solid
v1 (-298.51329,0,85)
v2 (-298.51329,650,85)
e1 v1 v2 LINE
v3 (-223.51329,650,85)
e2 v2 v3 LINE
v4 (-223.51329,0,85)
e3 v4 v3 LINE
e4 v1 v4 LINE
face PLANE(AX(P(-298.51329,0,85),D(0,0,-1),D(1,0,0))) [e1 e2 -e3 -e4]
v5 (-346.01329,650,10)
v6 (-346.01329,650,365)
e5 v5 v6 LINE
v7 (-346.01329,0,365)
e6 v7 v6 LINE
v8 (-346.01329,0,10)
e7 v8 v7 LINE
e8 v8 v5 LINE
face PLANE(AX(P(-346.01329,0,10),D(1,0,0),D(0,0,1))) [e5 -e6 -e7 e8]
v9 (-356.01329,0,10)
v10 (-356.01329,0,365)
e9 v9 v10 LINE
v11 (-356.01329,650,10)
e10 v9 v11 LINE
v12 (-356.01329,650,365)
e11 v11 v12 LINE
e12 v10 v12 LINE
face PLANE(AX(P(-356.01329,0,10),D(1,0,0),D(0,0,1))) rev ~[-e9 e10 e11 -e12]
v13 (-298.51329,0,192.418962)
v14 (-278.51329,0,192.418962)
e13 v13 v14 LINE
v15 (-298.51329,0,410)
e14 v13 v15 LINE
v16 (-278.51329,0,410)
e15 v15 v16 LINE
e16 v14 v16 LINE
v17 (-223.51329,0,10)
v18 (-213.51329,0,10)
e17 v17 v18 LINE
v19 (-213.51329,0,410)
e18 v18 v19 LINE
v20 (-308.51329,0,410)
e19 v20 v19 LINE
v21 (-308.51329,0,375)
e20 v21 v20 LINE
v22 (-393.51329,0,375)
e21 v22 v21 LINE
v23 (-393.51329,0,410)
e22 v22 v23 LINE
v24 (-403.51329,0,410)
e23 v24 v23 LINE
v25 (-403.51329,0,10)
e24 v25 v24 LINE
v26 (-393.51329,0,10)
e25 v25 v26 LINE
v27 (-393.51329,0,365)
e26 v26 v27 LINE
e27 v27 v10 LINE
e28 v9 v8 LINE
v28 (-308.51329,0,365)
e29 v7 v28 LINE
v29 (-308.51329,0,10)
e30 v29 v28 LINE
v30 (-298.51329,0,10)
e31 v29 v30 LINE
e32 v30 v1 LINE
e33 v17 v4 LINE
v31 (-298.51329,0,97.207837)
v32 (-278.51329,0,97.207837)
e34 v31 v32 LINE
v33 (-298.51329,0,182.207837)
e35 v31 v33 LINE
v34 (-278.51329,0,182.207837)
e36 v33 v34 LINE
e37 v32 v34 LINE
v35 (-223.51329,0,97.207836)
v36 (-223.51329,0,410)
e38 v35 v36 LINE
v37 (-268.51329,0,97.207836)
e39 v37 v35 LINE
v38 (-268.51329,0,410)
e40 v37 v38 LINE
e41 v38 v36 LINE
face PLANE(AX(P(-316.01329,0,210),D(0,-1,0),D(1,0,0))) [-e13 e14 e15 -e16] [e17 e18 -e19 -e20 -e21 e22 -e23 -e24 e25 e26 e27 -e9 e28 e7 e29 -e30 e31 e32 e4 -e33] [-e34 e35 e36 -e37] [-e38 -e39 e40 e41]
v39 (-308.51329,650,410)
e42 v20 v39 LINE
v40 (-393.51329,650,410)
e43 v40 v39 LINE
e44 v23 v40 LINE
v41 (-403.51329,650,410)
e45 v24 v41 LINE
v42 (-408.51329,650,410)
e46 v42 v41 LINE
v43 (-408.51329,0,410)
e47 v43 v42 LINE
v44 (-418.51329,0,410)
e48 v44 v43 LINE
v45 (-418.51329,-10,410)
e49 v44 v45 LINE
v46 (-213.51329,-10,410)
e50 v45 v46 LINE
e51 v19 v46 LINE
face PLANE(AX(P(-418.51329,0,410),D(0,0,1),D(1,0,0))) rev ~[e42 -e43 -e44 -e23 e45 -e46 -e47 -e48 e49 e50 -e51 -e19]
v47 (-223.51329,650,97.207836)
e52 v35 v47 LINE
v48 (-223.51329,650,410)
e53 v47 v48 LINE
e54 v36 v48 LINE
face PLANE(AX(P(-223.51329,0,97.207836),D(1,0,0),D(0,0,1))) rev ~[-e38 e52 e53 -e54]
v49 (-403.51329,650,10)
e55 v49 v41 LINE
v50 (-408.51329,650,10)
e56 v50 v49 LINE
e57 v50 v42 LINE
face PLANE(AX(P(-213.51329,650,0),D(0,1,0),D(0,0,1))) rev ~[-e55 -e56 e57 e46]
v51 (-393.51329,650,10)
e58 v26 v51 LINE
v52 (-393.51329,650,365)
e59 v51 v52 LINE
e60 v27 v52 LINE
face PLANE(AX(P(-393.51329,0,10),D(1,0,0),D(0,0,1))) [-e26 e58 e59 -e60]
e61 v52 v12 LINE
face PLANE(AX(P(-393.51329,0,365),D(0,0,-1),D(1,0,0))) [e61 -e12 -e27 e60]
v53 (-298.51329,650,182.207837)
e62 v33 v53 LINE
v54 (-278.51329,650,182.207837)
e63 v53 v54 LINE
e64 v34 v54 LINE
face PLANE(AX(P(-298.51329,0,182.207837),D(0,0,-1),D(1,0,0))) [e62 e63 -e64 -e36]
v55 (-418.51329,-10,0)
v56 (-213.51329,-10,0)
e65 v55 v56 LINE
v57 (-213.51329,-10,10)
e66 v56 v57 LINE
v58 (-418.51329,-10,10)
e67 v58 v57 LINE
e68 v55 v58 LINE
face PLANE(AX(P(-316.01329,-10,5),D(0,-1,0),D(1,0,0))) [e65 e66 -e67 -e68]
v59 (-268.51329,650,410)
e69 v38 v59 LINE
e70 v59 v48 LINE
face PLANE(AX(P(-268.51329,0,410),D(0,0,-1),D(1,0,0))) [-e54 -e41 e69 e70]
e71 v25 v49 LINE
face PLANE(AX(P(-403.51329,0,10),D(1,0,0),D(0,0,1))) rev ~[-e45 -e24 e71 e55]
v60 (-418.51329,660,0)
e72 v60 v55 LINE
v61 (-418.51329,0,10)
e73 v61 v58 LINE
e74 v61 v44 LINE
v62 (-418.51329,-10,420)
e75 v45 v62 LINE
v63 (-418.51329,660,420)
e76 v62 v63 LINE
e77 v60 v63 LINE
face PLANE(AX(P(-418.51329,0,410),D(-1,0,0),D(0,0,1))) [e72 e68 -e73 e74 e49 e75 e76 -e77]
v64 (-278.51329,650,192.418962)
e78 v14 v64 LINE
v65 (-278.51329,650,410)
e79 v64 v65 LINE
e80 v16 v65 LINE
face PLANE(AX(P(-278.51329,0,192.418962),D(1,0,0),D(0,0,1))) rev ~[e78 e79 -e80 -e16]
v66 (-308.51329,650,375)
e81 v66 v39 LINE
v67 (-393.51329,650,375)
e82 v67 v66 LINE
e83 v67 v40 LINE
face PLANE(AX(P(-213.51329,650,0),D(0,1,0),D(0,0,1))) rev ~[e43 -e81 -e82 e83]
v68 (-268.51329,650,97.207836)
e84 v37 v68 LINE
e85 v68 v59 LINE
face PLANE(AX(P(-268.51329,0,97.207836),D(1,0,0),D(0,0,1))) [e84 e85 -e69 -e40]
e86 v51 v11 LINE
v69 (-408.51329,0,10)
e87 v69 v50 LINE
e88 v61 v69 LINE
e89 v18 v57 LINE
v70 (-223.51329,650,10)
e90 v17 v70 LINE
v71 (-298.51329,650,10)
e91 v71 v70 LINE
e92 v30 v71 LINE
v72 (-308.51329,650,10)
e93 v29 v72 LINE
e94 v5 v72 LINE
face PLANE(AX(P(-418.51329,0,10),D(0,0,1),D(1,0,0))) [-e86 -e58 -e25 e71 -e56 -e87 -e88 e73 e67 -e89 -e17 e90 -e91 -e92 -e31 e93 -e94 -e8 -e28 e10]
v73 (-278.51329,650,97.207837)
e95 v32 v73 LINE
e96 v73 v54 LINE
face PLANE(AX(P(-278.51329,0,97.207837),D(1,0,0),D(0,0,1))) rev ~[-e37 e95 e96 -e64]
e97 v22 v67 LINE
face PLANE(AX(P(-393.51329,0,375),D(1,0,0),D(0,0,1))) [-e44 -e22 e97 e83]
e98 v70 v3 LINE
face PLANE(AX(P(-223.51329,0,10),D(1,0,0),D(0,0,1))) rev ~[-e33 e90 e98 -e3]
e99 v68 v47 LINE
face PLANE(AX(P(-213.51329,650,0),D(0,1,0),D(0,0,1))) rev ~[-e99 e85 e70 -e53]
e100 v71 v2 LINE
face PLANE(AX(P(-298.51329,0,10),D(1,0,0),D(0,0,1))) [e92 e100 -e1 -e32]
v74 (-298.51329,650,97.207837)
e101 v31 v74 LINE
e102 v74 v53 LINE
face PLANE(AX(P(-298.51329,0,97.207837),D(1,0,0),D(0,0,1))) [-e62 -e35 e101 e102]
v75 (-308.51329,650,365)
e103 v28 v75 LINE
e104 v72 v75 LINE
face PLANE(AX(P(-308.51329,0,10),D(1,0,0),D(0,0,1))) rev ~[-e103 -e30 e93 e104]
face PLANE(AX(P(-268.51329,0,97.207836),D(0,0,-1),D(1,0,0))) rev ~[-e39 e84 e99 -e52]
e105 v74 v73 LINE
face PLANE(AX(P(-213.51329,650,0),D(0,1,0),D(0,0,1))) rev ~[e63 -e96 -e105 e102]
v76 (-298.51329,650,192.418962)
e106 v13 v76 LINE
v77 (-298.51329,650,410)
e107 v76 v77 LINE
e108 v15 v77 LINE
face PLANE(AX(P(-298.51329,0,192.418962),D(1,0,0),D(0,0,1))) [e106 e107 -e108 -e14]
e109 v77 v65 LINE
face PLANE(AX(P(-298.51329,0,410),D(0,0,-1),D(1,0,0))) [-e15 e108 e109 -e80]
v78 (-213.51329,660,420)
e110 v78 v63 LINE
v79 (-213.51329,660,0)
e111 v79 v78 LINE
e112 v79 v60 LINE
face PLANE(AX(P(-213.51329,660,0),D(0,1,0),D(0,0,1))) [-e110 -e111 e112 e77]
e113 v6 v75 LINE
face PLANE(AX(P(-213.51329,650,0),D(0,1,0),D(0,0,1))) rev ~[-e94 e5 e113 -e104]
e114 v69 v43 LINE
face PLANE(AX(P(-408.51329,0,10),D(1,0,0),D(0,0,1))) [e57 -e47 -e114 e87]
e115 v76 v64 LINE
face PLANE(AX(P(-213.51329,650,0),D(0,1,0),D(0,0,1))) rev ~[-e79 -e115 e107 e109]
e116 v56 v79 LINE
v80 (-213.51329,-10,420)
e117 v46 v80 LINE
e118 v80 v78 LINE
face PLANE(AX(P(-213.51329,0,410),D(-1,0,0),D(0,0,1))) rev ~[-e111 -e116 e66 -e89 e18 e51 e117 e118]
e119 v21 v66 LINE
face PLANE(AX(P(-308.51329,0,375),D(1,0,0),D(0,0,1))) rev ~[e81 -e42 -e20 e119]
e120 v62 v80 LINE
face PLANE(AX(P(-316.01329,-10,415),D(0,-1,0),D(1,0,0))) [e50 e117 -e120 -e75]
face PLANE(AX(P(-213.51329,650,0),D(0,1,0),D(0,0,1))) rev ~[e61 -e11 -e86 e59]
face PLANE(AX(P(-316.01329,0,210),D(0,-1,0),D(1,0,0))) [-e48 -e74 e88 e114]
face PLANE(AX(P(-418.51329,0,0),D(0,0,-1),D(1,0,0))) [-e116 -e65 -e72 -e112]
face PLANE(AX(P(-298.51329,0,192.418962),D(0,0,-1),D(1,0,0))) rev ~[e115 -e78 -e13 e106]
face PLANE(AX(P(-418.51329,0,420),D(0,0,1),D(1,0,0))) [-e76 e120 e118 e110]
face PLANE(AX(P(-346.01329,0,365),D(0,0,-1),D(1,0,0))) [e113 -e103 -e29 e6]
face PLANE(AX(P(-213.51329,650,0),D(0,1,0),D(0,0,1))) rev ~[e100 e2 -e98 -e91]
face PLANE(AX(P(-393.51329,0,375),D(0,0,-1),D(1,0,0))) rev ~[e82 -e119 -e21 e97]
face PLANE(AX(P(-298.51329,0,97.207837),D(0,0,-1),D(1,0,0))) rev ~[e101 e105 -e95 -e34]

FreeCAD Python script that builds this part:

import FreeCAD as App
import Part
import Sketcher
from FreeCAD import Vector
Q = App.Units.Quantity


def add_polygon(sketch, points):
    """Adds a closed chain of lines whose ends are joined by coincident constraints."""
    first, n = sketch.GeometryCount, len(points)
    for a, b in zip(points, points[1:] + points[:1]):
        sketch.addGeometry(Part.LineSegment(App.Vector(*a, 0), App.Vector(*b, 0)), False)
    for i in range(n):
        sketch.addConstraint(Sketcher.Constraint("Coincident", first + i, 2, first + (i + 1) % n, 1))

doc = App.newDocument("Part")
body = doc.addObject("PartDesign::Body", "Body")

# Sketch on XZ plane
sketch1 = body.newObject("Sketcher::SketchObject", "Sketch")
sketch1.AttachmentSupport = (doc.getObject("XZ_Plane"), [""])
sketch1.MapMode = "FlatFace"
add_polygon(sketch1, [(-419, 420), (-419, 0), (-214, 0), (-214, 420)])  # lines 0-3
add_polygon(sketch1, [(-356, 10), (-394, 10), (-394, 365), (-356, 365)])  # lines 4-7
add_polygon(sketch1, [(-309, 10), (-346, 10), (-346, 365), (-309, 365)])  # lines 8-11
add_polygon(sketch1, [(-224, 10), (-299, 10), (-299, 85), (-224, 85)])  # lines 12-15
add_polygon(sketch1, [(-279, 97), (-299, 97), (-299, 182), (-279, 182)])  # lines 16-19
add_polygon(sketch1, [(-404, 10), (-409, 10), (-409, 410), (-404, 410)])  # lines 20-23
add_polygon(sketch1, [(-309, 375), (-394, 375), (-394, 410), (-309, 410)])  # lines 24-27
add_polygon(sketch1, [(-279, 192), (-299, 192), (-299, 410), (-279, 410)])  # lines 28-31
add_polygon(sketch1, [(-224, 97), (-269, 97), (-269, 410), (-224, 410)])  # lines 32-35
sketch1.addConstraint([
    Sketcher.Constraint("Vertical", 0),
    Sketcher.Constraint("Horizontal", 1),
    Sketcher.Constraint("Vertical", 2),
    Sketcher.Constraint("Horizontal", 3),
    Sketcher.Constraint("Horizontal", 4),
    Sketcher.Constraint("Vertical", 5),
    Sketcher.Constraint("Horizontal", 6),
    Sketcher.Constraint("Vertical", 7),
    Sketcher.Constraint("Horizontal", 8),
    Sketcher.Constraint("Vertical", 9),
    Sketcher.Constraint("Horizontal", 10),
    Sketcher.Constraint("Vertical", 11),
    Sketcher.Constraint("Horizontal", 12),
    Sketcher.Constraint("Vertical", 13),
    Sketcher.Constraint("Horizontal", 14),
    Sketcher.Constraint("Vertical", 15),
    Sketcher.Constraint("Horizontal", 16),
    Sketcher.Constraint("Vertical", 17),
    Sketcher.Constraint("Horizontal", 18),
    Sketcher.Constraint("Vertical", 19),
    Sketcher.Constraint("Horizontal", 20),
    Sketcher.Constraint("Vertical", 21),
    Sketcher.Constraint("Horizontal", 22),
    Sketcher.Constraint("Vertical", 23),
    Sketcher.Constraint("Horizontal", 24),
    Sketcher.Constraint("Vertical", 25),
    Sketcher.Constraint("Horizontal", 26),
    Sketcher.Constraint("Vertical", 27),
    Sketcher.Constraint("Horizontal", 28),
    Sketcher.Constraint("Vertical", 29),
    Sketcher.Constraint("Horizontal", 30),
    Sketcher.Constraint("Vertical", 31),
    Sketcher.Constraint("Horizontal", 32),
    Sketcher.Constraint("Vertical", 33),
    Sketcher.Constraint("Horizontal", 34),
    Sketcher.Constraint("Vertical", 35),
    Sketcher.Constraint("PointOnObject", 0, 2, -1),
    Sketcher.Constraint("Horizontal", 7, 2, 8, 2),
    Sketcher.Constraint("Horizontal", 6, 2, 9, 2),
    Sketcher.Constraint("Horizontal", 11, 2, 12, 2),
    Sketcher.Constraint("Horizontal", 15, 2, 20, 2),
    Sketcher.Constraint("Horizontal", 22, 2, 25, 2),
    Sketcher.Constraint("Horizontal", 26, 2, 29, 2),
    Sketcher.Constraint("Horizontal", 19, 2, 32, 2),
    Sketcher.Constraint("Horizontal", 30, 2, 33, 2),
    Sketcher.Constraint("Vertical", 13, 2, 16, 2),
    Sketcher.Constraint("Vertical", 5, 2, 24, 2),
    Sketcher.Constraint("Vertical", 11, 2, 26, 2),
    Sketcher.Constraint("Vertical", 17, 2, 28, 2),
    Sketcher.Constraint("Vertical", 19, 2, 30, 2),
    Sketcher.Constraint("Vertical", 15, 2, 34, 2),
    Sketcher.Constraint("Equal", 6, 8),
    Sketcher.Constraint("Equal", 14, 13),
    Sketcher.Constraint("Equal", 26, 17),
    Sketcher.Constraint("DistanceX", 1, 1, 1, 2, Q("205 mm")),
    Sketcher.Constraint("DistanceX", 12, 2, 12, 1, Q("75 mm")),
    Sketcher.Constraint("DistanceX", 16, 2, 16, 1, Q("20 mm")),
    Sketcher.Constraint("DistanceX", 20, 2, 20, 1, Q("5 mm")),
    Sketcher.Constraint("DistanceX", 24, 2, 24, 1, Q("85 mm")),
    Sketcher.Constraint("DistanceX", 32, 2, 32, 1, Q("45 mm")),
    Sketcher.Constraint("DistanceY", 0, 2, 0, 1, Q("420 mm")),
    Sketcher.Constraint("DistanceY", 5, 1, 5, 2, Q("355 mm")),
    Sketcher.Constraint("DistanceY", 21, 1, 21, 2, Q("400 mm")),
    Sketcher.Constraint("DistanceY", 25, 1, 25, 2, Q("35 mm")),
    Sketcher.Constraint("DistanceX", 4, 2, 4, 1, Q("37.5 mm")),
    Sketcher.Constraint("DistanceY", -1, 1, 4, 2, Q("10 mm")),
    Sketcher.Constraint("DistanceX", 0, 2, 4, 2, Q("25 mm")),
    Sketcher.Constraint("DistanceX", 11, 2, 12, 2, Q("10 mm")),
    Sketcher.Constraint("DistanceX", 0, 2, 20, 2, Q("10 mm")),
    Sketcher.Constraint("DistanceY", 29, 1, 29, 2, Q("217.581037 mm")),
    Sketcher.Constraint("DistanceY", 33, 1, 33, 2, Q("312.792163 mm")),
    Sketcher.Constraint("DistanceX", 0, 2, -1, 1, Q("418.51329 mm")),
])
pad1 = body.newObject("PartDesign::Pad", "Pad")
pad1.Profile = sketch1
pad1.Length = 650
pad1.Reversed = True

# Sketch on YZ plane
sketch2 = body.newObject("Sketcher::SketchObject", "Sketch001")
sketch2.AttachmentSupport = (doc.getObject("YZ_Plane"), [""])
sketch2.MapMode = "FlatFace"
sketch2.AttachmentOffset = App.Placement(Vector(0, 0, -213.51329), App.Rotation())
add_polygon(sketch2, [(650, 420), (650, 0), (660, 0), (660, 420)])  # lines 0-3
sketch2.addConstraint([
    Sketcher.Constraint("Vertical", 0),
    Sketcher.Constraint("Horizontal", 1),
    Sketcher.Constraint("Vertical", 2),
    Sketcher.Constraint("Horizontal", 3),
    Sketcher.Constraint("PointOnObject", 0, 2, -1),
    Sketcher.Constraint("DistanceX", 1, 1, 1, 2, Q("10 mm")),
    Sketcher.Constraint("DistanceY", 0, 2, 0, 1, Q("420 mm")),
    Sketcher.Constraint("DistanceX", -1, 1, 0, 2, Q("650 mm")),
])
pad2 = body.newObject("PartDesign::Pad", "Pad001")
pad2.Profile = sketch2
pad2.Length = 205
pad2.Reversed = True

# Sketch on XZ plane
sketch3 = body.newObject("Sketcher::SketchObject", "Sketch002")
sketch3.AttachmentSupport = (doc.getObject("XZ_Plane"), [""])
sketch3.MapMode = "FlatFace"
add_polygon(sketch3, [(-419, 420), (-419, 410), (-214, 410), (-214, 420)])  # lines 0-3
add_polygon(sketch3, [(-419, 10), (-419, 0), (-214, 0), (-214, 10)])  # lines 4-7
sketch3.addConstraint([
    Sketcher.Constraint("Vertical", 0),
    Sketcher.Constraint("Horizontal", 1),
    Sketcher.Constraint("Vertical", 2),
    Sketcher.Constraint("Horizontal", 3),
    Sketcher.Constraint("Vertical", 4),
    Sketcher.Constraint("Horizontal", 5),
    Sketcher.Constraint("Vertical", 6),
    Sketcher.Constraint("Horizontal", 7),
    Sketcher.Constraint("PointOnObject", 4, 2, -1),
    Sketcher.Constraint("Vertical", 3, 2, 4, 2),
    Sketcher.Constraint("Vertical", 2, 2, 5, 2),
    Sketcher.Constraint("Equal", 2, 4),
    Sketcher.Constraint("DistanceX", 1, 1, 1, 2, Q("205 mm")),
    Sketcher.Constraint("DistanceY", 0, 2, 0, 1, Q("10 mm")),
    Sketcher.Constraint("DistanceY", -1, 1, 0, 2, Q("410 mm")),
    Sketcher.Constraint("DistanceX", 0, 2, -1, 1, Q("418.51329 mm")),
])
pad3 = body.newObject("PartDesign::Pad", "Pad002")
pad3.Profile = sketch3
pad3.Length = 10

doc.recompute()
